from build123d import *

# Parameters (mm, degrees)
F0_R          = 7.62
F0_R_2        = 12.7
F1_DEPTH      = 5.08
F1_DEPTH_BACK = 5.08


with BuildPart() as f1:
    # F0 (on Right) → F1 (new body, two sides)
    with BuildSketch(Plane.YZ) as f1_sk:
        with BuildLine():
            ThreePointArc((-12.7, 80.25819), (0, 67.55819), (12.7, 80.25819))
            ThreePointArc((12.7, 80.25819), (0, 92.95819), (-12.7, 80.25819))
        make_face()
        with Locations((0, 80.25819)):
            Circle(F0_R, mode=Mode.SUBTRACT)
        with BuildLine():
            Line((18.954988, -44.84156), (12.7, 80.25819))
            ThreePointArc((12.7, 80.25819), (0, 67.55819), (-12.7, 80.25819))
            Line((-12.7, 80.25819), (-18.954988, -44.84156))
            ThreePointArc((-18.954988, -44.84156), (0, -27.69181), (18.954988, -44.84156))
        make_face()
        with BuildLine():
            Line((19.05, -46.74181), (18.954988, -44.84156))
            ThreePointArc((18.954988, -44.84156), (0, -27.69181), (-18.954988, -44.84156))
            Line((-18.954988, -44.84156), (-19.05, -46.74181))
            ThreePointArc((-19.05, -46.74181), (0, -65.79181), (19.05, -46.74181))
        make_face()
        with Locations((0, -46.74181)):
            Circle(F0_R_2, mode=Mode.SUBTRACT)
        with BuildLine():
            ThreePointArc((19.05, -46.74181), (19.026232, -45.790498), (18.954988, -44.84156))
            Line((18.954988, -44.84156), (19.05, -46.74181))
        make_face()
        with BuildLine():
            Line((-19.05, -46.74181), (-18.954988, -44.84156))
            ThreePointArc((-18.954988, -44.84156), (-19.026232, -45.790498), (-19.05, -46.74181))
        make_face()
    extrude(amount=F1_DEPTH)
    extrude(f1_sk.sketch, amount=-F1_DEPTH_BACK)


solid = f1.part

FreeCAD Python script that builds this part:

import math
import FreeCAD as App
import Part
import Sketcher

V = App.Vector
Q = App.Units.Quantity

doc = App.newDocument("Part")
body = doc.addObject("PartDesign::Body", "Body")

# Sketch on YZ plane
sketch1 = body.newObject("Sketcher::SketchObject", "Sketch")
sketch1.AttachmentSupport = (doc.getObject("YZ_Plane"), [""])
sketch1.MapMode = "FlatFace"
sketch1.addGeometry([
    Part.ArcOfCircle(Part.Circle(V(0, 80.3, 0), V(0, 0, 1), 12.7), math.radians(0), math.radians(180)),  # 0
    Part.LineSegment(V(-12.7, 80.3, 0), V(-19, -44.8, 0)),  # 1
    Part.ArcOfCircle(Part.Circle(V(0, -46.7, 0), V(0, 0, 1), 19.1), math.radians(174.28), math.radians(180)),  # 2
    Part.ArcOfCircle(Part.Circle(V(0, -46.7, 0), V(0, 0, 1), 19.1), math.radians(180), math.radians(360)),  # 3
    Part.ArcOfCircle(Part.Circle(V(0, -46.7, 0), V(0, 0, 1), 19.1), math.radians(0), math.radians(5.72)),  # 4
    Part.LineSegment(V(19, -44.8, 0), V(12.7, 80.3, 0)),  # 5
    Part.Circle(V(0, -46.7, 0), V(0, 0, 1), 12.7),  # 6
    Part.Circle(V(0, 80.3, 0), V(0, 0, 1), 7.6),  # 7
], False)
sketch1.addConstraint([
    Sketcher.Constraint("Coincident", 0, 2, 1, 1),
    Sketcher.Constraint("Coincident", 1, 2, 2, 1),
    Sketcher.Constraint("Tangent", 2, 2, 3, 1),
    Sketcher.Constraint("Tangent", 3, 2, 4, 1),
    Sketcher.Constraint("Coincident", 4, 2, 5, 1),
    Sketcher.Constraint("Coincident", 5, 2, 0, 1),
    Sketcher.Constraint("Coincident", 6, 3, 3, 3),
    Sketcher.Constraint("Coincident", 7, 3, 0, 3),
    Sketcher.Constraint("Equal", 2, 4),
    Sketcher.Constraint("Equal", 0, 6),
    Sketcher.Constraint("Symmetric", 2, 2, 3, 2, -2),
    Sketcher.Constraint("Symmetric", 0, 2, 5, 2, -2),
    Sketcher.Constraint("Horizontal", 7, 3, 0, 2),
    Sketcher.Constraint("Horizontal", 6, 3, 2, 2),
    Sketcher.Constraint("Horizontal", 1, 2, 4, 2),
    Sketcher.Constraint("Diameter", 6, Q("1 in")),
    Sketcher.Constraint("Diameter", 7, Q("0.6 in")),
    Sketcher.Constraint("Radius", 3, Q("0.75 in")),
    Sketcher.Constraint("DistanceY", 3, 3, 0, 3, Q("5 in")),
    Sketcher.Constraint("Radius", 2, 19.05024),
    Sketcher.Constraint("DistanceY", -1, 1, 0, 3, 80.25819),
    Sketcher.Constraint("DistanceX", 1, 2, -1, 1, 18.954988),
])
pad1 = body.newObject("PartDesign::Pad", "Pad")
pad1.Profile = sketch1
pad1.Type = "TwoLengths"
pad1.Length = Q("0.2 in")
pad1.Length2 = Q("0.2 in")

doc.recompute()
